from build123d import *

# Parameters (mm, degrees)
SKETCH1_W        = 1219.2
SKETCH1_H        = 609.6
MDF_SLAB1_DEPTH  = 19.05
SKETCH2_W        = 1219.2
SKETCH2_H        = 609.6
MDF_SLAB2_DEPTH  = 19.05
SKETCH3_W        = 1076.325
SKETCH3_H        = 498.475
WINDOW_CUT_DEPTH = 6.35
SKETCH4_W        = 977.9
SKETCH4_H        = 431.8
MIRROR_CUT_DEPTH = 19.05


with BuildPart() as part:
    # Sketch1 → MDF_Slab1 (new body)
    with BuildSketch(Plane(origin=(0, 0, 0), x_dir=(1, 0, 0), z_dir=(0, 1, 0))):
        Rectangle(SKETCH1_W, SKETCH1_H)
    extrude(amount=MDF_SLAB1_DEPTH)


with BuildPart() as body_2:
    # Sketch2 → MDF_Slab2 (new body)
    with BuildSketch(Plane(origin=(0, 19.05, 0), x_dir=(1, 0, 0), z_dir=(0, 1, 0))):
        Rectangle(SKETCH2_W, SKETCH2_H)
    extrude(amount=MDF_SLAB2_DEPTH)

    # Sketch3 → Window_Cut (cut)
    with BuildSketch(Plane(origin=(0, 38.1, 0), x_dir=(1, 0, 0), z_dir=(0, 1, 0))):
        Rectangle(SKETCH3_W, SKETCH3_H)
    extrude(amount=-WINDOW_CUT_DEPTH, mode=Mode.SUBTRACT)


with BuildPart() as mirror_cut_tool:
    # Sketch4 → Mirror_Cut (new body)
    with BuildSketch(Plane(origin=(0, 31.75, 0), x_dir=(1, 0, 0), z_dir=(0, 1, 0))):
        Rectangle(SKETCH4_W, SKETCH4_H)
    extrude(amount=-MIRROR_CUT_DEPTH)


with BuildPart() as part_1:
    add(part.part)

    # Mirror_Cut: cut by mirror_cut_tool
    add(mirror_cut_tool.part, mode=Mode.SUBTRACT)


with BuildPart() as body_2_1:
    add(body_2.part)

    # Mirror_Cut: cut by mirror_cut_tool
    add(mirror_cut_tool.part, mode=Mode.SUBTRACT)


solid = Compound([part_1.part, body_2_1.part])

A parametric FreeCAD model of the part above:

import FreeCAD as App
import Part
import Sketcher
from FreeCAD import Vector
Q = App.Units.Quantity


def add_polygon(sketch, points):
    """Adds a closed chain of lines whose ends are joined by coincident constraints."""
    first, n = sketch.GeometryCount, len(points)
    for a, b in zip(points, points[1:] + points[:1]):
        sketch.addGeometry(Part.LineSegment(App.Vector(*a, 0), App.Vector(*b, 0)), False)
    for i in range(n):
        sketch.addConstraint(Sketcher.Constraint("Coincident", first + i, 2, first + (i + 1) % n, 1))

doc = App.newDocument("Part")
params = doc.addObject("Spreadsheet::Sheet", "Params")
for row, (alias, value) in enumerate([
    ("sketch1_width", "48 in"),
    ("sketch1_height", "24 in"),
    ("pad1_length", "0.75 in"),
    ("sketch2_width", "48 in"),
    ("sketch2_height", "24 in"),
    ("pad2_length", "0.75 in"),
    ("sketch3_width", "42.375 in"),
    ("sketch3_height", "19.625 in"),
    ("pocket1_length", "0.25 in"),
    ("sketch4_height", "17 in"),
    ("sketch4_width", "38.5 in"),
    ("pad3_length", "0.75 in"),
], start=1):
    params.set(f"A{row}", alias)
    params.set(f"B{row}", "=" + value)
    params.setAlias(f"B{row}", alias)

body = doc.addObject("PartDesign::Body", "Body")

sketch1 = body.newObject("Sketcher::SketchObject", "Sketch")
sketch1.AttachmentSupport = (doc.getObject("XZ_Plane"), [""])
sketch1.MapMode = "FlatFace"
add_polygon(sketch1, [(-610, -305), (-610, 305), (610, 305), (610, -305)])
sketch1.addConstraint([
    Sketcher.Constraint("Vertical", 0),
    Sketcher.Constraint("Horizontal", 1),
    Sketcher.Constraint("Vertical", 2),
    Sketcher.Constraint("Horizontal", 3),
    Sketcher.Constraint("Symmetric", 0, 2, 2, 2, -1, 1),
    Sketcher.Constraint("DistanceX", 1, 1, 1, 2, Q("48 in")),
    Sketcher.Constraint("DistanceY", 0, 1, 0, 2, Q("24 in")),
])
sketch1.setExpression("Constraints[9]", "Params.sketch1_width")
sketch1.setExpression("Constraints[10]", "Params.sketch1_height")
pad1 = body.newObject("PartDesign::Pad", "Pad")
pad1.Profile = sketch1
pad1.setExpression("Length", "Params.pad1_length")
pad1.Reversed = True
body2 = doc.addObject("PartDesign::Body", "Body001")

sketch2 = body2.newObject("Sketcher::SketchObject", "Sketch001")
sketch2.AttachmentSupport = (doc.getObject("XZ_Plane001"), [""])
sketch2.MapMode = "FlatFace"
sketch2.AttachmentOffset = App.Placement(Vector(0, 0, -0.75 * 25.4), App.Rotation())
add_polygon(sketch2, [(-610, -305), (-610, 305), (610, 305), (610, -305)])
sketch2.addConstraint([
    Sketcher.Constraint("Vertical", 0),
    Sketcher.Constraint("Horizontal", 1),
    Sketcher.Constraint("Vertical", 2),
    Sketcher.Constraint("Horizontal", 3),
    Sketcher.Constraint("Symmetric", 0, 2, 2, 2, -1, 1),
    Sketcher.Constraint("DistanceX", 1, 1, 1, 2, Q("48 in")),
    Sketcher.Constraint("DistanceY", 0, 1, 0, 2, Q("24 in")),
])
sketch2.setExpression("Constraints[9]", "Params.sketch2_width")
sketch2.setExpression("Constraints[10]", "Params.sketch2_height")
pad2 = body2.newObject("PartDesign::Pad", "Pad001")
pad2.Profile = sketch2
pad2.setExpression("Length", "Params.pad2_length")
pad2.Reversed = True

sketch3 = body2.newObject("Sketcher::SketchObject", "Sketch002")
sketch3.AttachmentSupport = (doc.getObject("XZ_Plane001"), [""])
sketch3.MapMode = "FlatFace"
sketch3.AttachmentOffset = App.Placement(Vector(0, 0, -1.5 * 25.4), App.Rotation())
add_polygon(sketch3, [(-538, -249), (-538, 249), (538, 249), (538, -249)])
sketch3.addConstraint([
    Sketcher.Constraint("Vertical", 0),
    Sketcher.Constraint("Horizontal", 1),
    Sketcher.Constraint("Vertical", 2),
    Sketcher.Constraint("Horizontal", 3),
    Sketcher.Constraint("Symmetric", 0, 2, 2, 2, -1, 1),
    Sketcher.Constraint("DistanceX", 1, 1, 1, 2, Q("42.375 in")),
    Sketcher.Constraint("DistanceY", 0, 1, 0, 2, Q("19.625 in")),
])
sketch3.setExpression("Constraints[9]", "Params.sketch3_width")
sketch3.setExpression("Constraints[10]", "Params.sketch3_height")
pocket1 = body2.newObject("PartDesign::Pocket", "Pocket")
pocket1.Profile = sketch3
pocket1.setExpression("Length", "Params.pocket1_length")
pocket1.Reversed = True
body3 = doc.addObject("PartDesign::Body", "Body002")

sketch4 = body3.newObject("Sketcher::SketchObject", "Sketch003")
sketch4.AttachmentSupport = (doc.getObject("XZ_Plane002"), [""])
sketch4.MapMode = "FlatFace"
sketch4.AttachmentOffset = App.Placement(Vector(0, 0, -1.25 * 25.4), App.Rotation())
add_polygon(sketch4, [(-489, -216), (-489, 216), (489, 216), (489, -216)])
sketch4.addConstraint([
    Sketcher.Constraint("Vertical", 0),
    Sketcher.Constraint("Horizontal", 1),
    Sketcher.Constraint("Vertical", 2),
    Sketcher.Constraint("Horizontal", 3),
    Sketcher.Constraint("Symmetric", 0, 2, 2, 2, -1, 1),
    Sketcher.Constraint("DistanceY", 0, 1, 0, 2, Q("17 in")),
    Sketcher.Constraint("DistanceX", 1, 1, 1, 2, Q("38.5 in")),
])
sketch4.setExpression("Constraints[9]", "Params.sketch4_height")
sketch4.setExpression("Constraints[10]", "Params.sketch4_width")
pad3 = body3.newObject("PartDesign::Pad", "Pad002")
pad3.Profile = sketch4
pad3.setExpression("Length", "Params.pad3_length")
doc.recompute()

body4 = doc.addObject("PartDesign::Body", "Body003")
body4.BaseFeature = body3
boolean = body.newObject("PartDesign::Boolean", "Boolean")
boolean.Type = "Cut"
boolean.addObjects([body4])
doc.recompute()

boolean2 = body2.newObject("PartDesign::Boolean", "Boolean001")
boolean2.Type = "Cut"
boolean2.addObjects([body3])

doc.recompute()
